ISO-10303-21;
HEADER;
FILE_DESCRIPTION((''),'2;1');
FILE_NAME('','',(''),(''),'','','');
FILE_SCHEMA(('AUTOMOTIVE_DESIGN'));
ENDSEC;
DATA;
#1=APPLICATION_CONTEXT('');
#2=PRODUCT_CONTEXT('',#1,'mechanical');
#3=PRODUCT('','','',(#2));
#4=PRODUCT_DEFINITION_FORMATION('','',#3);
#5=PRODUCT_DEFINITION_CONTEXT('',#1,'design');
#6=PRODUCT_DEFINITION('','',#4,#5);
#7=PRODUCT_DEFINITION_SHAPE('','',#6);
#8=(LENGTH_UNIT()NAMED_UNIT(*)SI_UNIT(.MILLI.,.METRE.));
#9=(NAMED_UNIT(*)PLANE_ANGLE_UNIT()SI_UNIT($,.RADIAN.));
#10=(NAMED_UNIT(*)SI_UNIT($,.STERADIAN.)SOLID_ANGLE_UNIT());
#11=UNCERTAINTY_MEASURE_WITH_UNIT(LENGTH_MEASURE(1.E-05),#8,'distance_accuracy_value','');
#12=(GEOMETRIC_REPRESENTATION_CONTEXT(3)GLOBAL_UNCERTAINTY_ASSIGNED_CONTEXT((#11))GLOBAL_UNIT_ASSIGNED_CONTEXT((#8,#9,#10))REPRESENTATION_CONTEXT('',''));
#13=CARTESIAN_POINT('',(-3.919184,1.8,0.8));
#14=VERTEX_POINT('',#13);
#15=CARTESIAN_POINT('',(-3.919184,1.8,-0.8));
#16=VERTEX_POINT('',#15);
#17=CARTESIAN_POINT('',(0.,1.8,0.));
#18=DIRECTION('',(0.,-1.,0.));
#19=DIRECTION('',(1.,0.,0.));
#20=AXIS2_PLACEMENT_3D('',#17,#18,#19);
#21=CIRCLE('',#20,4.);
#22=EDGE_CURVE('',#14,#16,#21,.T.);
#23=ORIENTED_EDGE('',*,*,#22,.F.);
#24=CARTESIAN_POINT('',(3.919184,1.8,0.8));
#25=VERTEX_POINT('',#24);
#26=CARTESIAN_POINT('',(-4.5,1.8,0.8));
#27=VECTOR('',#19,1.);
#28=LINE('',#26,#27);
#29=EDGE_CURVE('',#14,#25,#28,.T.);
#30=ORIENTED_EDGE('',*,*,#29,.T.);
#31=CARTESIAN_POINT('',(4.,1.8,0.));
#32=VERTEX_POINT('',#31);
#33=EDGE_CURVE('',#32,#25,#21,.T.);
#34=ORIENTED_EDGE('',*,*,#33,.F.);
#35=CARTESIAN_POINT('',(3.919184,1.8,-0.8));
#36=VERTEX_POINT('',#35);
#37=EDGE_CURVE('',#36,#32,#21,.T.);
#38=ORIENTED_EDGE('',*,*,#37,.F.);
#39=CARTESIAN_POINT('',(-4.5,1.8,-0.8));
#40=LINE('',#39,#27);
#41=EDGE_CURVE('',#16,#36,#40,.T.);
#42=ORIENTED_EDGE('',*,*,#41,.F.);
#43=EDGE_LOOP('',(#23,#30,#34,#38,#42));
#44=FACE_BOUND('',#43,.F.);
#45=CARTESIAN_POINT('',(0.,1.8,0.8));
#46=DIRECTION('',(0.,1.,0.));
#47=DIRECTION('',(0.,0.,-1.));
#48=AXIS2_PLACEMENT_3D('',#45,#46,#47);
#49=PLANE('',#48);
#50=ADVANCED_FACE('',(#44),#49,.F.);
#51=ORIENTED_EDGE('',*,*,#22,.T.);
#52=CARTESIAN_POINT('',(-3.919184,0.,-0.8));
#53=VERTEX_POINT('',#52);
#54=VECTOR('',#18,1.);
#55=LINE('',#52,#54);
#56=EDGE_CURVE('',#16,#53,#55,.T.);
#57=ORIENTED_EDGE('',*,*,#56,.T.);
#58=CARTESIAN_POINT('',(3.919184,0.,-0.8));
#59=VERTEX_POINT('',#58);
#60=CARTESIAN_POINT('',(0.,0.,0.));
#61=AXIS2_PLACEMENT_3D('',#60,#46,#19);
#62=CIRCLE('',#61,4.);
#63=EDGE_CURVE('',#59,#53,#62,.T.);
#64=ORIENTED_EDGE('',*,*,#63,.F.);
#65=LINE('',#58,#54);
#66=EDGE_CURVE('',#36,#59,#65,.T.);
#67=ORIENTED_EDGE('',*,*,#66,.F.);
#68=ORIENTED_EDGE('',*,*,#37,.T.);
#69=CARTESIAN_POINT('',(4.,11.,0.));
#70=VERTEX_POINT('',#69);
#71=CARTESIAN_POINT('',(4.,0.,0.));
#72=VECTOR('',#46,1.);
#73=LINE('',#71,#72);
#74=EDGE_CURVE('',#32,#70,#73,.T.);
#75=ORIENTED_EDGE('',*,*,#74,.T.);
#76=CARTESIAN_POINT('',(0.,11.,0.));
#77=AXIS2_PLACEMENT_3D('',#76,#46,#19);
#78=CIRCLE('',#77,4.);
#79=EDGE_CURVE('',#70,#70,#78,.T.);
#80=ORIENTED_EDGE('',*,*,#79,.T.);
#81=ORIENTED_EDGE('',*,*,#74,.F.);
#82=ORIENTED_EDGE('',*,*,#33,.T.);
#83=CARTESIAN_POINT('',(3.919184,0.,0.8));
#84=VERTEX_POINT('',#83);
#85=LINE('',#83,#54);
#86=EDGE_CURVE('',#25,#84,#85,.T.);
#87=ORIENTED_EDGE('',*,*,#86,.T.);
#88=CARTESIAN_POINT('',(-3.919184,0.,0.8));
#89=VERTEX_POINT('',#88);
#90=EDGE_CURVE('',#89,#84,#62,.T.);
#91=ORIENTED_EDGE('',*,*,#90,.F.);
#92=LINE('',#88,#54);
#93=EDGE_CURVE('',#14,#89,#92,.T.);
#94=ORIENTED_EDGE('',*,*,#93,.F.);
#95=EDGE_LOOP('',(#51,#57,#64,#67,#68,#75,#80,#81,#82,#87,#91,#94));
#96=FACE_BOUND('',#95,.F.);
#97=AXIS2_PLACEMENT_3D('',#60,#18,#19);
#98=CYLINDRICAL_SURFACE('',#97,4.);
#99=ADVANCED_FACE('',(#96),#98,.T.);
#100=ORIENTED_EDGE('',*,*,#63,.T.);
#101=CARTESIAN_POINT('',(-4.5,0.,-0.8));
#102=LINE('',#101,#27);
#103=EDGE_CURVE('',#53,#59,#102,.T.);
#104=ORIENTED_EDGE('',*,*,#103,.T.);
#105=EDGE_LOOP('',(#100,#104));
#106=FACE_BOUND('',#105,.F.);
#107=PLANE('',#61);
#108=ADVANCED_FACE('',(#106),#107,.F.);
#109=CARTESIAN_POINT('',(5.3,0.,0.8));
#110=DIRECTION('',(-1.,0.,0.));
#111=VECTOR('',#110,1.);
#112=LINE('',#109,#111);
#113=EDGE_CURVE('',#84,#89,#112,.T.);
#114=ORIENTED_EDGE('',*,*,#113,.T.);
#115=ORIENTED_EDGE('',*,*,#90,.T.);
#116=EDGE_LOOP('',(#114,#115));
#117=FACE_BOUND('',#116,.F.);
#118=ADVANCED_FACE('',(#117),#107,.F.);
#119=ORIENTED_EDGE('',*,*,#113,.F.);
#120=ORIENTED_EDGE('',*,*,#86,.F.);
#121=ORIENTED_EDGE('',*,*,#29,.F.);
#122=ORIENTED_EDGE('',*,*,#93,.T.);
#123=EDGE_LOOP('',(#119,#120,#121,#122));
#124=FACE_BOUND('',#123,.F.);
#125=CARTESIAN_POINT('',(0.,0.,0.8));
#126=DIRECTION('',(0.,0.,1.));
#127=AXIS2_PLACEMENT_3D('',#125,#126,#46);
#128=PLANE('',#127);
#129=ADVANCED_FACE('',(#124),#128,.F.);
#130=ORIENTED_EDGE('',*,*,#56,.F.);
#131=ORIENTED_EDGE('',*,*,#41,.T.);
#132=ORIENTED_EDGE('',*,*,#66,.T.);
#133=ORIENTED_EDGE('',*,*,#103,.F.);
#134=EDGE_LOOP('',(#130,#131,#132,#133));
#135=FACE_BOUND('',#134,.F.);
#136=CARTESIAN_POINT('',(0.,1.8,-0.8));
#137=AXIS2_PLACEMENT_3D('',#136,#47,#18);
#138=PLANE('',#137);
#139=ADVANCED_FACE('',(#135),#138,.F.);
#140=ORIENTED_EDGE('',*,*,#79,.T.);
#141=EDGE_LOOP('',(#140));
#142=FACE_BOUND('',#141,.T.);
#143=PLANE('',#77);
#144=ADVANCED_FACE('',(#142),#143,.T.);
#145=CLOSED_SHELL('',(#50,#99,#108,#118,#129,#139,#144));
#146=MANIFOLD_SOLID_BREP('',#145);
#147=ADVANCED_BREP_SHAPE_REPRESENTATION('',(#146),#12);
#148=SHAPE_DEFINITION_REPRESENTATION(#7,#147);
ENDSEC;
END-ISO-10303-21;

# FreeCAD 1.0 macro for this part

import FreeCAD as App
import Part
import Sketcher

V = App.Vector
Q = App.Units.Quantity

doc = App.newDocument("Part")
body = doc.addObject("PartDesign::Body", "Body")

# Sketch on XZ plane
sketch1 = doc.addObject("Sketcher::SketchObject", "Sketch")
body.addObject(sketch1)
sketch1.AttachmentSupport = (doc.XZ_Plane, [""])
sketch1.MapMode = "FlatFace"
sketch1.addGeometry(Part.Circle(V(0, 0, 0), V(0, 0, 1), 4), False)
sketch1.addConstraint([
    Sketcher.Constraint("Coincident", 0, 3, -1, 1),
    Sketcher.Constraint("Diameter", 0, Q("8 mm")),
])
pad1 = doc.addObject("PartDesign::Pad", "Pad")
body.addObject(pad1)
pad1.Profile = sketch1
pad1.Length = 11
pad1.Reversed = True

# Sketch on YZ plane
sketch2 = doc.addObject("Sketcher::SketchObject", "Sketch001")
body.addObject(sketch2)
sketch2.AttachmentSupport = (doc.YZ_Plane, [""])
sketch2.MapMode = "FlatFace"
sketch2.addGeometry([
    Part.LineSegment(V(0, 0.8, 0), V(0, -0.8, 0)),
    Part.LineSegment(V(0, -0.8, 0), V(1.8, -0.8, 0)),
    Part.LineSegment(V(1.8, -0.8, 0), V(1.8, 0.8, 0)),
    Part.LineSegment(V(1.8, 0.8, 0), V(0, 0.8, 0)),
], False)
sketch2.addConstraint([
    Sketcher.Constraint("Coincident", 0, 2, 1, 1),
    Sketcher.Constraint("Coincident", 1, 2, 2, 1),
    Sketcher.Constraint("Coincident", 2, 2, 3, 1),
    Sketcher.Constraint("Coincident", 3, 2, 0, 1),
    Sketcher.Constraint("Vertical", 0),
    Sketcher.Constraint("Horizontal", 1),
    Sketcher.Constraint("Vertical", 2),
    Sketcher.Constraint("Horizontal", 3),
    Sketcher.Constraint("Symmetric", 0, 2, 3, 2, -1, 1),
    Sketcher.Constraint("DistanceX", 1, 1, 1, 2, Q("1.8 mm")),
    Sketcher.Constraint("DistanceY", 0, 2, 0, 1, Q("1.6 mm")),
])
pocket1 = doc.addObject("PartDesign::Pocket", "Pocket")
body.addObject(pocket1)
pocket1.Profile = sketch2
pocket1.Type = "ThroughAll"
pocket1.Midplane = True

doc.recompute()
